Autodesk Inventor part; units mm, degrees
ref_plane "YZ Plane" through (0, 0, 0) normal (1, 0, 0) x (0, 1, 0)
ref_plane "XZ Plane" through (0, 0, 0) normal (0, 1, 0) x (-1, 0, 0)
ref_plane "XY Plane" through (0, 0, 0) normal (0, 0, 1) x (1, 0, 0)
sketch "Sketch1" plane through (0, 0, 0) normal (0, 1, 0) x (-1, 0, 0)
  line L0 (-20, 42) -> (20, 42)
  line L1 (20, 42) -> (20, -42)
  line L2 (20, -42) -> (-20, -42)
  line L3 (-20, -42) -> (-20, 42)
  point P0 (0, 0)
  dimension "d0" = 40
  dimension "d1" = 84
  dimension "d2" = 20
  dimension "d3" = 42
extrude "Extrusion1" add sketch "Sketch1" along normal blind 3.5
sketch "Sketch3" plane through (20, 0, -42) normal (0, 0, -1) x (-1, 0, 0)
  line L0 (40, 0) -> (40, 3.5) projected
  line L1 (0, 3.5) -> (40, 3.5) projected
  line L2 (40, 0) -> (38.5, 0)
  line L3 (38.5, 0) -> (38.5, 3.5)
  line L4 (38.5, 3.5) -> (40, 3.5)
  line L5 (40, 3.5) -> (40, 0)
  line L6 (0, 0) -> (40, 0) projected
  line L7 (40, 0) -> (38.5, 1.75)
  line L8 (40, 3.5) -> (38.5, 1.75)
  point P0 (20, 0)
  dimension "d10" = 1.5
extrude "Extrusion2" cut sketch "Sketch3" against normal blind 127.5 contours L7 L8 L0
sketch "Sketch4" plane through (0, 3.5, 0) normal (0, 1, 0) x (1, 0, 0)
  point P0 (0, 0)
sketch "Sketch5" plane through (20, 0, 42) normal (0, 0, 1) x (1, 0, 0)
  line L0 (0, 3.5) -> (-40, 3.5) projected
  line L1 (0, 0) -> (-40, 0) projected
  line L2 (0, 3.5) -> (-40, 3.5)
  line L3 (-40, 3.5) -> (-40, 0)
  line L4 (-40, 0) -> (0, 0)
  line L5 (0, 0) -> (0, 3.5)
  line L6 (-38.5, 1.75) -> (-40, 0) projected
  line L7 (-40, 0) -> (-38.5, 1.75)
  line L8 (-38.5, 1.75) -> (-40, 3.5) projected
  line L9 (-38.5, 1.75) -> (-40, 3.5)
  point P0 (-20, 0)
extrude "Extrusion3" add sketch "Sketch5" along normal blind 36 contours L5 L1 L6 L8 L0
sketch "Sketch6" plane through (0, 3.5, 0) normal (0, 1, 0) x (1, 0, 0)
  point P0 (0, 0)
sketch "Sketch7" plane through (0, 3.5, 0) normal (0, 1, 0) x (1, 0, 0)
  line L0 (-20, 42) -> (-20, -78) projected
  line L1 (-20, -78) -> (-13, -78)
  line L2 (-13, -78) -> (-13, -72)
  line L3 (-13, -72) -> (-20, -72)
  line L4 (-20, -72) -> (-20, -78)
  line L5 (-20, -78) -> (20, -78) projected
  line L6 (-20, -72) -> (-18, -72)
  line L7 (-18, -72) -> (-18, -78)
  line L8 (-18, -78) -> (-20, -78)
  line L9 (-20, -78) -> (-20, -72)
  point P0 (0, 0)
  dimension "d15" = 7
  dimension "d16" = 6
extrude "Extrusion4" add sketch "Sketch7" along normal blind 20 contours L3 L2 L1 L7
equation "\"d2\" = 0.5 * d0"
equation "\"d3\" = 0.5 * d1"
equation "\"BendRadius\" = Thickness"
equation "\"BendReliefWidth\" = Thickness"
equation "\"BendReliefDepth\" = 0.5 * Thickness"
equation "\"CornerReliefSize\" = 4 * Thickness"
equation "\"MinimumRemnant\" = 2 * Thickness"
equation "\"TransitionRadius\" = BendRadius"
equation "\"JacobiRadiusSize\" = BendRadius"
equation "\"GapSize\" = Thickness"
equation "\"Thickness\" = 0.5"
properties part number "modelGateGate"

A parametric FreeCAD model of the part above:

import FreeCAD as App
import Part
import Sketcher
from FreeCAD import Vector
Q = App.Units.Quantity

doc = App.newDocument("Part")
body = doc.addObject("PartDesign::Body", "Body")

# Sketch on XZ plane
sketch1 = body.newObject("Sketcher::SketchObject", "Sketch")
sketch1.AttachmentSupport = (doc.getObject("XZ_Plane"), [""])
sketch1.MapMode = "FlatFace"
sketch1.addGeometry([
    Part.LineSegment(Vector(-20, 42, 0), Vector(20, 42, 0)),
    Part.LineSegment(Vector(20, 42, 0), Vector(20, -42, 0)),
    Part.LineSegment(Vector(20, -42, 0), Vector(-20, -42, 0)),
    Part.LineSegment(Vector(-20, -42, 0), Vector(-20, 42, 0)),
], False)
sketch1.addConstraint([
    Sketcher.Constraint("Coincident", 0, 2, 1, 1),
    Sketcher.Constraint("Coincident", 1, 2, 2, 1),
    Sketcher.Constraint("Coincident", 2, 2, 3, 1),
    Sketcher.Constraint("Coincident", 3, 2, 0, 1),
    Sketcher.Constraint("Horizontal", 0),
    Sketcher.Constraint("Vertical", 1),
    Sketcher.Constraint("Horizontal", 2),
    Sketcher.Constraint("Vertical", 3),
    Sketcher.Constraint("Symmetric", 0, 2, 2, 2, -1, 1),
    Sketcher.Constraint("DistanceX", 0, 1, 0, 2, Q("40 mm")),
    Sketcher.Constraint("DistanceY", 1, 2, 1, 1, Q("84 mm")),
])
pad1 = body.newObject("PartDesign::Pad", "Pad")
pad1.Profile = sketch1
pad1.Length = 3.5
pad1.Reversed = True

# Sketch on XY plane
sketch2 = body.newObject("Sketcher::SketchObject", "Sketch001")
sketch2.AttachmentSupport = (doc.getObject("XY_Plane"), [""])
sketch2.MapMode = "FlatFace"
sketch2.AttachmentOffset = App.Placement(Vector(0, 0, -42), App.Rotation())
sketch2.addGeometry([
    Part.LineSegment(Vector(-18.5, 1.8, 0), Vector(-20, 0, 0)),
    Part.LineSegment(Vector(-20, 0, 0), Vector(-20, 3.5, 0)),
    Part.LineSegment(Vector(-20, 3.5, 0), Vector(-18.5, 1.8, 0)),
], False)
sketch2.addConstraint([
    Sketcher.Constraint("Coincident", 0, 2, 1, 1),
    Sketcher.Constraint("Coincident", 1, 2, 2, 1),
    Sketcher.Constraint("Coincident", 2, 2, 0, 1),
    Sketcher.Constraint("Vertical", 1),
    Sketcher.Constraint("PointOnObject", 0, 2, -1),
    Sketcher.Constraint("Equal", 0, 2),
    Sketcher.Constraint("DistanceX", 0, 2, 2, 2, Q("1.5 mm")),
    Sketcher.Constraint("DistanceY", 1, 1, 1, 2, Q("3.5 mm")),
    Sketcher.Constraint("DistanceX", 0, 2, -1, 1, Q("20 mm")),
])
pocket1 = body.newObject("PartDesign::Pocket", "Pocket")
pocket1.Profile = sketch2
pocket1.Length = 127.5
pocket1.Reversed = True

# Sketch on XY plane
sketch3 = body.newObject("Sketcher::SketchObject", "Sketch002")
sketch3.AttachmentSupport = (doc.getObject("XY_Plane"), [""])
sketch3.MapMode = "FlatFace"
sketch3.AttachmentOffset = App.Placement(Vector(0, 0, 42), App.Rotation())
sketch3.addGeometry([
    Part.LineSegment(Vector(20, 0, 0), Vector(20, 3.5, 0)),  # 0
    Part.LineSegment(Vector(20, 3.5, 0), Vector(-20, 3.5, 0)),  # 1
    Part.LineSegment(Vector(-20, 3.5, 0), Vector(-18.5, 1.8, 0)),  # 2
    Part.LineSegment(Vector(-18.5, 1.8, 0), Vector(-20, 0, 0)),  # 3
    Part.LineSegment(Vector(-20, 0, 0), Vector(20, 0, 0)),  # 4
], False)
sketch3.addConstraint([
    Sketcher.Constraint("Coincident", 0, 2, 1, 1),
    Sketcher.Constraint("Coincident", 1, 2, 2, 1),
    Sketcher.Constraint("Coincident", 2, 2, 3, 1),
    Sketcher.Constraint("Coincident", 3, 2, 4, 1),
    Sketcher.Constraint("Coincident", 4, 2, 0, 1),
    Sketcher.Constraint("Vertical", 0),
    Sketcher.Constraint("Horizontal", 1),
    Sketcher.Constraint("Horizontal", 4),
    Sketcher.Constraint("Symmetric", 3, 2, 4, 2, -1, 1),
    Sketcher.Constraint("Vertical", 1, 2, 3, 2),
    Sketcher.Constraint("Equal", 2, 3),
    Sketcher.Constraint("DistanceX", 1, 2, 1, 1, Q("40 mm")),
    Sketcher.Constraint("DistanceY", 0, 1, 0, 2, Q("3.5 mm")),
    Sketcher.Constraint("DistanceX", 2, 2, -1, 1, Q("18.5 mm")),
])
pad2 = body.newObject("PartDesign::Pad", "Pad001")
pad2.Profile = sketch3
pad2.Length = 36

# Sketch on XZ plane
sketch4 = body.newObject("Sketcher::SketchObject", "Sketch003")
sketch4.AttachmentSupport = (doc.getObject("XZ_Plane"), [""])
sketch4.MapMode = "FlatFace"
sketch4.AttachmentOffset = App.Placement(Vector(0, 0, -3.5), App.Rotation())
sketch4.addGeometry([
    Part.LineSegment(Vector(-13, 72, 0), Vector(-18, 72, 0)),
    Part.LineSegment(Vector(-18, 72, 0), Vector(-18, 78, 0)),
    Part.LineSegment(Vector(-18, 78, 0), Vector(-13, 78, 0)),
    Part.LineSegment(Vector(-13, 78, 0), Vector(-13, 72, 0)),
], False)
sketch4.addConstraint([
    Sketcher.Constraint("Coincident", 0, 2, 1, 1),
    Sketcher.Constraint("Coincident", 1, 2, 2, 1),
    Sketcher.Constraint("Coincident", 2, 2, 3, 1),
    Sketcher.Constraint("Coincident", 3, 2, 0, 1),
    Sketcher.Constraint("Horizontal", 0),
    Sketcher.Constraint("Vertical", 1),
    Sketcher.Constraint("Horizontal", 2),
    Sketcher.Constraint("Vertical", 3),
    Sketcher.Constraint("DistanceY", 1, 1, 1, 2, Q("6 mm")),
    Sketcher.Constraint("DistanceX", 0, 2, 0, 1, Q("5 mm")),
    Sketcher.Constraint("DistanceX", 0, 2, -1, 1, Q("18 mm")),
    Sketcher.Constraint("DistanceY", -1, 1, 0, 2, Q("72 mm")),
])
pad3 = body.newObject("PartDesign::Pad", "Pad002")
pad3.Profile = sketch4
pad3.Length = 20
pad3.Reversed = True

doc.recompute()
